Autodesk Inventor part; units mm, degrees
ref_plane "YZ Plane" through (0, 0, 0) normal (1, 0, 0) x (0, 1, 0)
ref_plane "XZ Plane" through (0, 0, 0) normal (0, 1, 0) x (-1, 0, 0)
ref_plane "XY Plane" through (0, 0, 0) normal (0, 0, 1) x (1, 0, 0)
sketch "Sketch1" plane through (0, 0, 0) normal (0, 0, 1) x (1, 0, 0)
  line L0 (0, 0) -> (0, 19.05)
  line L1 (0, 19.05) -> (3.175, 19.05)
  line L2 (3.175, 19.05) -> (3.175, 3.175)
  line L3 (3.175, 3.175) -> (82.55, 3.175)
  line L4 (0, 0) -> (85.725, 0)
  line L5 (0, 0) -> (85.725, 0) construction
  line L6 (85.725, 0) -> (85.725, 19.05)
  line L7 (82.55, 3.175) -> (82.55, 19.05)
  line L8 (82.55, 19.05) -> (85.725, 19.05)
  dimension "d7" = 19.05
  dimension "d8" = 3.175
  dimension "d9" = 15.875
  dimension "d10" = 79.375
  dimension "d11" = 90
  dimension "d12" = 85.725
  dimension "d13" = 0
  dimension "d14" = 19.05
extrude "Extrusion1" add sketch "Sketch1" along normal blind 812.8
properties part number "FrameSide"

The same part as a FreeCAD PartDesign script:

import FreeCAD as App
import Part
import Sketcher
Q = App.Units.Quantity


def add_polygon(sketch, points):
    """Adds a closed chain of lines whose ends are joined by coincident constraints."""
    first, n = sketch.GeometryCount, len(points)
    for a, b in zip(points, points[1:] + points[:1]):
        sketch.addGeometry(Part.LineSegment(App.Vector(*a, 0), App.Vector(*b, 0)), False)
    for i in range(n):
        sketch.addConstraint(Sketcher.Constraint("Coincident", first + i, 2, first + (i + 1) % n, 1))

doc = App.newDocument("Part")
body = doc.addObject("PartDesign::Body", "Body")

# Sketch on XY plane
sketch1 = doc.addObject("Sketcher::SketchObject", "Sketch")
body.addObject(sketch1)
sketch1.AttachmentSupport = (doc.XY_Plane, [""])
sketch1.MapMode = "FlatFace"
add_polygon(sketch1, [(0, 19.1), (0, 0), (85.7, 0), (85.7, 19.1), (82.5, 19.1), (82.5, 3.2), (3.2, 3.2), (3.2, 19.1)])  # lines 0-7
sketch1.addConstraint([
    Sketcher.Constraint("Vertical", 0),
    Sketcher.Constraint("Horizontal", 1),
    Sketcher.Constraint("Vertical", 2),
    Sketcher.Constraint("Horizontal", 3),
    Sketcher.Constraint("Vertical", 4),
    Sketcher.Constraint("Horizontal", 5),
    Sketcher.Constraint("Vertical", 6),
    Sketcher.Constraint("Horizontal", 7),
    Sketcher.Constraint("Coincident", 0, 2, -1, 1),
    Sketcher.Constraint("Horizontal", 3, 2, 6, 2),
    Sketcher.Constraint("Equal", 3, 7),
    Sketcher.Constraint("DistanceY", 0, 2, 0, 1, Q("0.75 in")),
    Sketcher.Constraint("DistanceX", 1, 1, 1, 2, Q("3.375 in")),
    Sketcher.Constraint("DistanceX", 3, 2, 3, 1, Q("0.125 in")),
    Sketcher.Constraint("DistanceY", 4, 2, 4, 1, Q("0.625 in")),
])
pad1 = doc.addObject("PartDesign::Pad", "Pad")
body.addObject(pad1)
pad1.Profile = sketch1
pad1.Length = Q("32 in")

doc.recompute()
